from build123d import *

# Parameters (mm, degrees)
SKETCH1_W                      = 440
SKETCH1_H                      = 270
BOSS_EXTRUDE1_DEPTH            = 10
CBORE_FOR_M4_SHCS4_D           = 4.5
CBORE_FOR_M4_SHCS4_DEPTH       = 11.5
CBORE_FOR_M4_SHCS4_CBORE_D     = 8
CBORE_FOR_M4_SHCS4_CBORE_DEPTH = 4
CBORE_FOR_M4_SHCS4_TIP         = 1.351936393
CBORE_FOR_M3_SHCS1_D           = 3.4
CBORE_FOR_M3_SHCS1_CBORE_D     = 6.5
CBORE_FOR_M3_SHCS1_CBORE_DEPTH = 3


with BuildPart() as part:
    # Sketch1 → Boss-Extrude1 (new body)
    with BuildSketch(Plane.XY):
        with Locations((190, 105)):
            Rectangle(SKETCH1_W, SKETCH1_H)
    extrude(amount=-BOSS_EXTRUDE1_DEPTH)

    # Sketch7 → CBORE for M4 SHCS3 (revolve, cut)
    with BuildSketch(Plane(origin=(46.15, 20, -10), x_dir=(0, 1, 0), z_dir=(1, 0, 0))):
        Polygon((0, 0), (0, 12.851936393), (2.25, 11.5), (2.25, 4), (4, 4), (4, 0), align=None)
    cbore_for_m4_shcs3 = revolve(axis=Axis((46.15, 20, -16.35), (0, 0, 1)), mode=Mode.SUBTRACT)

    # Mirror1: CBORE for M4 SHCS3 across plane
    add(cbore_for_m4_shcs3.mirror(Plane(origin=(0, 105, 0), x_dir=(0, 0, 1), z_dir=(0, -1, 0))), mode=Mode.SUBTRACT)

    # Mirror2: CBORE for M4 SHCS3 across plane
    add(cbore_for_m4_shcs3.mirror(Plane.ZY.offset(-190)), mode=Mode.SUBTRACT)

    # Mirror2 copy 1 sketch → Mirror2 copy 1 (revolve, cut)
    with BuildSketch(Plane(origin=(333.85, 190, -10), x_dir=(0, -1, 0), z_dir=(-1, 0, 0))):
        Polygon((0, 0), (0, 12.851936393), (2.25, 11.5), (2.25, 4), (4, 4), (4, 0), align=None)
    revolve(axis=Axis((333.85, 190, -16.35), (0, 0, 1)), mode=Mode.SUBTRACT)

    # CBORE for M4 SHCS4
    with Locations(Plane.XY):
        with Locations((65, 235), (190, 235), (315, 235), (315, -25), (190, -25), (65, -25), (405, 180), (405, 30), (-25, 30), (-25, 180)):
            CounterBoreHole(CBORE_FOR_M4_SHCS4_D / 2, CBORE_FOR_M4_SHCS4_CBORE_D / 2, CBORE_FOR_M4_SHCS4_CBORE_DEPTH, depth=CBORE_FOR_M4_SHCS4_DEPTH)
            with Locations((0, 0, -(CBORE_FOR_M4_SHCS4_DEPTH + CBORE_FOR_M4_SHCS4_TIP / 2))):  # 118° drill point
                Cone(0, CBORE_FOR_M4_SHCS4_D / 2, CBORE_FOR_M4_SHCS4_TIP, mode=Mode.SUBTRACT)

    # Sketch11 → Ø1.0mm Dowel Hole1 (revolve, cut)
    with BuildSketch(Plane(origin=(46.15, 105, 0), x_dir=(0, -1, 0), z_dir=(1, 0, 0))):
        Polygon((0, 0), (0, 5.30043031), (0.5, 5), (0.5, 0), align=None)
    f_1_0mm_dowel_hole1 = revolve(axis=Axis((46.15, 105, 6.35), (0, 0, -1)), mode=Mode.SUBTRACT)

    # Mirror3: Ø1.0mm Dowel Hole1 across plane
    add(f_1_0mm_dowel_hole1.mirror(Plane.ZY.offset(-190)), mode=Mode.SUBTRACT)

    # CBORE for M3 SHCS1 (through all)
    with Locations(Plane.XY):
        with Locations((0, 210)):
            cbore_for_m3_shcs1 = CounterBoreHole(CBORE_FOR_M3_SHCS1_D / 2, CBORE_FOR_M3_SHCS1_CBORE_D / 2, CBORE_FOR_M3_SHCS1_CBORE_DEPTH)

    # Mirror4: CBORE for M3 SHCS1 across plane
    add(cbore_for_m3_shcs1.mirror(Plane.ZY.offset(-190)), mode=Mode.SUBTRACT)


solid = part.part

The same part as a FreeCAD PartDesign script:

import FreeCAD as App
import Part
import Sketcher
Q = App.Units.Quantity

doc = App.newDocument("Part")
body = doc.addObject("PartDesign::Body", "Body")

sketch1 = body.newObject("Sketcher::SketchObject", "Sketch")
sketch1.AttachmentSupport = (doc.getObject("XY_Plane"), [""])
sketch1.MapMode = "FlatFace"
sketch1.addGeometry(Part.LineSegment(App.Vector(-30, 240, 0), App.Vector(-30, -30, 0)), False)
sketch1.addGeometry(Part.LineSegment(App.Vector(-30, -30, 0), App.Vector(410, -30, 0)), False)
sketch1.addGeometry(Part.LineSegment(App.Vector(410, -30, 0), App.Vector(410, 240, 0)), False)
sketch1.addGeometry(Part.LineSegment(App.Vector(410, 240, 0), App.Vector(-30, 240, 0)), False)
sketch1.addConstraint(Sketcher.Constraint("Coincident", 0, 2, 1, 1))
sketch1.addConstraint(Sketcher.Constraint("Coincident", 1, 2, 2, 1))
sketch1.addConstraint(Sketcher.Constraint("Coincident", 2, 2, 3, 1))
sketch1.addConstraint(Sketcher.Constraint("Coincident", 3, 2, 0, 1))
sketch1.addConstraint(Sketcher.Constraint("Vertical", 0))
sketch1.addConstraint(Sketcher.Constraint("Horizontal", 1))
sketch1.addConstraint(Sketcher.Constraint("Vertical", 2))
sketch1.addConstraint(Sketcher.Constraint("Horizontal", 3))
sketch1.addConstraint(Sketcher.Constraint("DistanceX", 1, 1, 1, 2, Q("440 mm")))
sketch1.addConstraint(Sketcher.Constraint("DistanceY", 0, 2, 0, 1, Q("270 mm")))
sketch1.addConstraint(Sketcher.Constraint("DistanceX", 0, 2, -1, 1, Q("30 mm")))
sketch1.addConstraint(Sketcher.Constraint("DistanceY", 0, 2, -1, 1, Q("30 mm")))
pad1 = body.newObject("PartDesign::Pad", "Pad")
pad1.Profile = sketch1
pad1.Length = 10
pad1.Reversed = True

sketch2 = body.newObject("Sketcher::SketchObject", "Sketch001")
sketch2.AttachmentSupport = (doc.getObject("YZ_Plane"), [""])
sketch2.MapMode = "FlatFace"
sketch2.AttachmentOffset = App.Placement(App.Vector(0, 0, 46.15), App.Rotation())
sketch2.addGeometry(Part.LineSegment(App.Vector(20, 2.9, 0), App.Vector(20, -10, 0)), False)
sketch2.addGeometry(Part.LineSegment(App.Vector(20, -10, 0), App.Vector(24, -10, 0)), False)
sketch2.addGeometry(Part.LineSegment(App.Vector(24, -10, 0), App.Vector(24, -6, 0)), False)
sketch2.addGeometry(Part.LineSegment(App.Vector(24, -6, 0), App.Vector(22.2, -6, 0)), False)
sketch2.addGeometry(Part.LineSegment(App.Vector(22.2, -6, 0), App.Vector(22.2, 1.5, 0)), False)
sketch2.addGeometry(Part.LineSegment(App.Vector(22.2, 1.5, 0), App.Vector(20, 2.9, 0)), False)
sketch2.addGeometry(Part.LineSegment(App.Vector(20, -10, 0), App.Vector(20, 2.9, 0)), True)
sketch2.addConstraint(Sketcher.Constraint("Coincident", 0, 2, 1, 1))
sketch2.addConstraint(Sketcher.Constraint("Coincident", 1, 2, 2, 1))
sketch2.addConstraint(Sketcher.Constraint("Coincident", 2, 2, 3, 1))
sketch2.addConstraint(Sketcher.Constraint("Coincident", 3, 2, 4, 1))
sketch2.addConstraint(Sketcher.Constraint("Coincident", 4, 2, 5, 1))
sketch2.addConstraint(Sketcher.Constraint("Coincident", 5, 2, 0, 1))
sketch2.addConstraint(Sketcher.Constraint("Vertical", 0))
sketch2.addConstraint(Sketcher.Constraint("Horizontal", 1))
sketch2.addConstraint(Sketcher.Constraint("Vertical", 2))
sketch2.addConstraint(Sketcher.Constraint("Horizontal", 3))
sketch2.addConstraint(Sketcher.Constraint("Vertical", 4))
sketch2.addConstraint(Sketcher.Constraint("Vertical", 6))
sketch2.addConstraint(Sketcher.Constraint("Coincident", 6, 1, 0, 2))
sketch2.addConstraint(Sketcher.Constraint("Equal", 1, 2))
sketch2.addConstraint(Sketcher.Constraint("Equal", 0, 6))
sketch2.addConstraint(Sketcher.Constraint("DistanceX", 1, 1, 1, 2, Q("4 mm")))
sketch2.addConstraint(Sketcher.Constraint("Angle", 5, Q("149 deg")))
sketch2.addConstraint(Sketcher.Constraint("DistanceY", 4, 1, 4, 2, Q("7.5 mm")))
sketch2.addConstraint(Sketcher.Constraint("DistanceX", -1, 1, 0, 2, Q("20 mm")))
sketch2.addConstraint(Sketcher.Constraint("DistanceY", 0, 2, -1, 1, Q("10 mm")))
sketch2.addConstraint(Sketcher.Constraint("DistanceX", 3, 2, 3, 1, Q("1.75 mm")))
groove = body.newObject("PartDesign::Groove", "Groove")
groove.Profile = sketch2
groove.ReferenceAxis = (sketch2, ["Axis0"])
groove.Angle = 360
doc.recompute()

datumplane = body.newObject("PartDesign::Plane", "DatumPlane")
datumplane.AttachmentSupport = (doc.getObject("XZ_Plane"), [""])
datumplane.MapMode = "FlatFace"
datumplane.AttachmentOffset = App.Placement(App.Vector(0, 0, -105), App.Rotation())
mirrored = body.newObject("PartDesign::Mirrored", "Mirrored")
mirrored.Originals = [groove]
mirrored.MirrorPlane = (datumplane, [""])
body.Tip = mirrored
doc.recompute()

datumplane2 = body.newObject("PartDesign::Plane", "DatumPlane001")
datumplane2.AttachmentSupport = (doc.getObject("YZ_Plane"), [""])
datumplane2.MapMode = "FlatFace"
datumplane2.AttachmentOffset = App.Placement(App.Vector(0, 0, 190), App.Rotation())
mirrored2 = body.newObject("PartDesign::Mirrored", "Mirrored001")
mirrored2.Originals = [groove]
mirrored2.MirrorPlane = (datumplane2, [""])
body.Tip = mirrored2

sketch3 = body.newObject("Sketcher::SketchObject", "Sketch002")
sketch3.AttachmentSupport = (doc.getObject("YZ_Plane"), [""])
sketch3.MapMode = "FlatFace"
sketch3.AttachmentOffset = App.Placement(App.Vector(0, 0, 333.85), App.Rotation())
sketch3.addGeometry(Part.LineSegment(App.Vector(190, 2.9, 0), App.Vector(190, -10, 0)), False)
sketch3.addGeometry(Part.LineSegment(App.Vector(190, -10, 0), App.Vector(186, -10, 0)), False)
sketch3.addGeometry(Part.LineSegment(App.Vector(186, -10, 0), App.Vector(186, -6, 0)), False)
sketch3.addGeometry(Part.LineSegment(App.Vector(186, -6, 0), App.Vector(187.8, -6, 0)), False)
sketch3.addGeometry(Part.LineSegment(App.Vector(187.8, -6, 0), App.Vector(187.8, 1.5, 0)), False)
sketch3.addGeometry(Part.LineSegment(App.Vector(187.8, 1.5, 0), App.Vector(190, 2.9, 0)), False)
sketch3.addGeometry(Part.LineSegment(App.Vector(190, -10, 0), App.Vector(190, 2.9, 0)), True)
sketch3.addConstraint(Sketcher.Constraint("Coincident", 0, 2, 1, 1))
sketch3.addConstraint(Sketcher.Constraint("Coincident", 1, 2, 2, 1))
sketch3.addConstraint(Sketcher.Constraint("Coincident", 2, 2, 3, 1))
sketch3.addConstraint(Sketcher.Constraint("Coincident", 3, 2, 4, 1))
sketch3.addConstraint(Sketcher.Constraint("Coincident", 4, 2, 5, 1))
sketch3.addConstraint(Sketcher.Constraint("Coincident", 5, 2, 0, 1))
sketch3.addConstraint(Sketcher.Constraint("Vertical", 0))
sketch3.addConstraint(Sketcher.Constraint("Horizontal", 1))
sketch3.addConstraint(Sketcher.Constraint("Vertical", 2))
sketch3.addConstraint(Sketcher.Constraint("Horizontal", 3))
sketch3.addConstraint(Sketcher.Constraint("Vertical", 4))
sketch3.addConstraint(Sketcher.Constraint("Vertical", 6))
sketch3.addConstraint(Sketcher.Constraint("Coincident", 6, 1, 0, 2))
sketch3.addConstraint(Sketcher.Constraint("Equal", 1, 2))
sketch3.addConstraint(Sketcher.Constraint("Equal", 0, 6))
sketch3.addConstraint(Sketcher.Constraint("DistanceX", 1, 2, 1, 1, Q("4 mm")))
sketch3.addConstraint(Sketcher.Constraint("Angle", 5, Q("31 deg")))
sketch3.addConstraint(Sketcher.Constraint("DistanceY", 4, 1, 4, 2, Q("7.5 mm")))
sketch3.addConstraint(Sketcher.Constraint("DistanceX", -1, 1, 0, 2, Q("190 mm")))
sketch3.addConstraint(Sketcher.Constraint("DistanceY", 0, 2, -1, 1, Q("10 mm")))
sketch3.addConstraint(Sketcher.Constraint("DistanceX", 3, 1, 3, 2, Q("1.75 mm")))
groove2 = body.newObject("PartDesign::Groove", "Groove001")
groove2.Profile = sketch3
groove2.ReferenceAxis = (sketch3, ["Axis0"])
groove2.Angle = 360

sketch4 = body.newObject("Sketcher::SketchObject", "Sketch003")
sketch4.AttachmentSupport = (doc.getObject("XY_Plane"), [""])
sketch4.MapMode = "FlatFace"
sketch4.addGeometry(Part.Circle(App.Vector(65, 235, 0), App.Vector(0, 0, 1), 2.2), False)
sketch4.addGeometry(Part.Circle(App.Vector(190, 235, 0), App.Vector(0, 0, 1), 2.2), False)
sketch4.addGeometry(Part.Circle(App.Vector(315, 235, 0), App.Vector(0, 0, 1), 2.2), False)
sketch4.addGeometry(Part.Circle(App.Vector(315, -25, 0), App.Vector(0, 0, 1), 2.2), False)
sketch4.addGeometry(Part.Circle(App.Vector(190, -25, 0), App.Vector(0, 0, 1), 2.2), False)
sketch4.addGeometry(Part.Circle(App.Vector(65, -25, 0), App.Vector(0, 0, 1), 2.2), False)
sketch4.addGeometry(Part.Circle(App.Vector(405, 180, 0), App.Vector(0, 0, 1), 2.2), False)
sketch4.addGeometry(Part.Circle(App.Vector(405, 30, 0), App.Vector(0, 0, 1), 2.2), False)
sketch4.addGeometry(Part.Circle(App.Vector(-25, 30, 0), App.Vector(0, 0, 1), 2.2), False)
sketch4.addGeometry(Part.Circle(App.Vector(-25, 180, 0), App.Vector(0, 0, 1), 2.2), False)
sketch4.addConstraint(Sketcher.Constraint("Equal", 0, 1))
sketch4.addConstraint(Sketcher.Constraint("Equal", 1, 2))
sketch4.addConstraint(Sketcher.Constraint("Equal", 2, 3))
sketch4.addConstraint(Sketcher.Constraint("Equal", 3, 4))
sketch4.addConstraint(Sketcher.Constraint("Equal", 4, 5))
sketch4.addConstraint(Sketcher.Constraint("Equal", 5, 6))
sketch4.addConstraint(Sketcher.Constraint("Equal", 6, 7))
sketch4.addConstraint(Sketcher.Constraint("Equal", 7, 8))
sketch4.addConstraint(Sketcher.Constraint("Equal", 8, 9))
sketch4.addConstraint(Sketcher.Constraint("Horizontal", 0, 3, 1, 3))
sketch4.addConstraint(Sketcher.Constraint("Horizontal", 1, 3, 2, 3))
sketch4.addConstraint(Sketcher.Constraint("Horizontal", 3, 3, 4, 3))
sketch4.addConstraint(Sketcher.Constraint("Horizontal", 4, 3, 5, 3))
sketch4.addConstraint(Sketcher.Constraint("Horizontal", 7, 3, 8, 3))
sketch4.addConstraint(Sketcher.Constraint("Horizontal", 6, 3, 9, 3))
sketch4.addConstraint(Sketcher.Constraint("Vertical", 2, 3, 3, 3))
sketch4.addConstraint(Sketcher.Constraint("Vertical", 1, 3, 4, 3))
sketch4.addConstraint(Sketcher.Constraint("Vertical", 0, 3, 5, 3))
sketch4.addConstraint(Sketcher.Constraint("Vertical", 6, 3, 7, 3))
sketch4.addConstraint(Sketcher.Constraint("Vertical", 8, 3, 9, 3))
sketch4.addConstraint(Sketcher.Constraint("Diameter", 0, Q("4.5 mm")))
sketch4.addConstraint(Sketcher.Constraint("DistanceX", -1, 1, 0, 3, Q("65 mm")))
sketch4.addConstraint(Sketcher.Constraint("DistanceY", -1, 1, 0, 3, Q("235 mm")))
sketch4.addConstraint(Sketcher.Constraint("DistanceX", -1, 1, 1, 3, Q("190 mm")))
sketch4.addConstraint(Sketcher.Constraint("DistanceX", -1, 1, 2, 3, Q("315 mm")))
sketch4.addConstraint(Sketcher.Constraint("DistanceY", 3, 3, -1, 1, Q("25 mm")))
sketch4.addConstraint(Sketcher.Constraint("DistanceX", -1, 1, 6, 3, Q("405 mm")))
sketch4.addConstraint(Sketcher.Constraint("DistanceY", -1, 1, 6, 3, Q("180 mm")))
sketch4.addConstraint(Sketcher.Constraint("DistanceY", -1, 1, 7, 3, Q("30 mm")))
sketch4.addConstraint(Sketcher.Constraint("DistanceX", 8, 3, -1, 1, Q("25 mm")))
doc.recompute()
hole = body.newObject("PartDesign::Hole", "Hole")
hole.Profile = sketch4
hole.ThreadType = "None"
hole.Diameter = 4.5
hole.DepthType = "Dimension"
hole.Depth = 11.5
hole.DrillPoint = "Angled"
hole.DrillPointAngle = 118
hole.HoleCutType = "Counterbore"
hole.HoleCutDiameter = 8
hole.HoleCutDepth = 4

sketch5 = body.newObject("Sketcher::SketchObject", "Sketch004")
sketch5.AttachmentSupport = (doc.getObject("YZ_Plane"), [""])
sketch5.MapMode = "FlatFace"
sketch5.AttachmentOffset = App.Placement(App.Vector(0, 0, 46.15), App.Rotation())
sketch5.addGeometry(Part.LineSegment(App.Vector(105, -5.3, 0), App.Vector(105, 0, 0)), False)
sketch5.addGeometry(Part.LineSegment(App.Vector(105, 0, 0), App.Vector(104.5, 0, 0)), False)
sketch5.addGeometry(Part.LineSegment(App.Vector(104.5, 0, 0), App.Vector(104.5, -5, 0)), False)
sketch5.addGeometry(Part.LineSegment(App.Vector(104.5, -5, 0), App.Vector(105, -5.3, 0)), False)
sketch5.addGeometry(Part.LineSegment(App.Vector(105, 0, 0), App.Vector(105, -5.3, 0)), True)
sketch5.addConstraint(Sketcher.Constraint("Coincident", 0, 2, 1, 1))
sketch5.addConstraint(Sketcher.Constraint("Coincident", 1, 2, 2, 1))
sketch5.addConstraint(Sketcher.Constraint("Coincident", 2, 2, 3, 1))
sketch5.addConstraint(Sketcher.Constraint("Coincident", 3, 2, 0, 1))
sketch5.addConstraint(Sketcher.Constraint("Vertical", 0))
sketch5.addConstraint(Sketcher.Constraint("Horizontal", 1))
sketch5.addConstraint(Sketcher.Constraint("Vertical", 2))
sketch5.addConstraint(Sketcher.Constraint("Vertical", 4))
sketch5.addConstraint(Sketcher.Constraint("Coincident", 4, 1, 0, 2))
sketch5.addConstraint(Sketcher.Constraint("PointOnObject", 0, 2, -1))
sketch5.addConstraint(Sketcher.Constraint("Equal", 0, 4))
sketch5.addConstraint(Sketcher.Constraint("DistanceY", 2, 2, 2, 1, Q("5 mm")))
sketch5.addConstraint(Sketcher.Constraint("Angle", 3, Q("-31 deg")))
sketch5.addConstraint(Sketcher.Constraint("DistanceX", 1, 2, 1, 1, Q("0.5 mm")))
sketch5.addConstraint(Sketcher.Constraint("DistanceX", -1, 1, 0, 2, Q("105 mm")))
groove3 = body.newObject("PartDesign::Groove", "Groove002")
groove3.Profile = sketch5
groove3.ReferenceAxis = (sketch5, ["Axis0"])
groove3.Angle = 360
doc.recompute()

datumplane3 = body.newObject("PartDesign::Plane", "DatumPlane002")
datumplane3.AttachmentSupport = (doc.getObject("YZ_Plane"), [""])
datumplane3.MapMode = "FlatFace"
datumplane3.AttachmentOffset = App.Placement(App.Vector(0, 0, 190), App.Rotation())
mirrored3 = body.newObject("PartDesign::Mirrored", "Mirrored002")
mirrored3.Originals = [groove3]
mirrored3.MirrorPlane = (datumplane3, [""])
body.Tip = mirrored3

sketch6 = body.newObject("Sketcher::SketchObject", "Sketch005")
sketch6.AttachmentSupport = (doc.getObject("XY_Plane"), [""])
sketch6.MapMode = "FlatFace"
sketch6.addGeometry(Part.Circle(App.Vector(0, 210, 0), App.Vector(0, 0, 1), 1.7), False)
sketch6.addConstraint(Sketcher.Constraint("PointOnObject", 0, 3, -2))
sketch6.addConstraint(Sketcher.Constraint("Diameter", 0, Q("3.4 mm")))
sketch6.addConstraint(Sketcher.Constraint("DistanceY", -1, 1, 0, 3, Q("210 mm")))
doc.recompute()
hole2 = body.newObject("PartDesign::Hole", "Hole001")
hole2.Profile = sketch6
hole2.ThreadType = "None"
hole2.Diameter = 3.4
hole2.DepthType = "ThroughAll"
hole2.HoleCutType = "Counterbore"
hole2.HoleCutDiameter = 6.5
hole2.HoleCutDepth = 3
doc.recompute()

datumplane4 = body.newObject("PartDesign::Plane", "DatumPlane003")
datumplane4.AttachmentSupport = (doc.getObject("YZ_Plane"), [""])
datumplane4.MapMode = "FlatFace"
datumplane4.AttachmentOffset = App.Placement(App.Vector(0, 0, 190), App.Rotation())
mirrored4 = body.newObject("PartDesign::Mirrored", "Mirrored003")
mirrored4.Originals = [hole2]
mirrored4.MirrorPlane = (datumplane4, [""])
body.Tip = mirrored4

doc.recompute()
